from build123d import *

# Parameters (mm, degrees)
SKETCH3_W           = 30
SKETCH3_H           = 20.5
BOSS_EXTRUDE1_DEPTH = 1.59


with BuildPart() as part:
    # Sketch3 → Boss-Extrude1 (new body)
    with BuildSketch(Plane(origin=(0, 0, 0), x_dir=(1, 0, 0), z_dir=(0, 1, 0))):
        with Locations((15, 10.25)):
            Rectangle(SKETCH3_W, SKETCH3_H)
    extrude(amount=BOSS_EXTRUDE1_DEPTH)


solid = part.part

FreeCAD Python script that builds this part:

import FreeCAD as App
import Part
import Sketcher
Q = App.Units.Quantity

doc = App.newDocument("Part")
body = doc.addObject("PartDesign::Body", "Body")

# Sketch on XZ plane
sketch1 = body.newObject("Sketcher::SketchObject", "Sketch")
sketch1.AttachmentSupport = (doc.getObject("XZ_Plane"), [""])
sketch1.MapMode = "FlatFace"
sketch1.addGeometry([
    Part.LineSegment(App.Vector(0, -20.5, 0), App.Vector(0, 0, 0)),
    Part.LineSegment(App.Vector(0, 0, 0), App.Vector(30, 0, 0)),
    Part.LineSegment(App.Vector(30, 0, 0), App.Vector(30, -20.5, 0)),
    Part.LineSegment(App.Vector(30, -20.5, 0), App.Vector(0, -20.5, 0)),
], False)
sketch1.addConstraint([
    Sketcher.Constraint("Coincident", 0, 2, 1, 1),
    Sketcher.Constraint("Coincident", 1, 2, 2, 1),
    Sketcher.Constraint("Coincident", 2, 2, 3, 1),
    Sketcher.Constraint("Coincident", 3, 2, 0, 1),
    Sketcher.Constraint("Vertical", 0),
    Sketcher.Constraint("Horizontal", 1),
    Sketcher.Constraint("Vertical", 2),
    Sketcher.Constraint("Horizontal", 3),
    Sketcher.Constraint("Coincident", 0, 2, -1, 1),
    Sketcher.Constraint("DistanceX", 1, 1, 1, 2, Q("30 mm")),
    Sketcher.Constraint("DistanceY", 0, 1, 0, 2, Q("20.5 mm")),
])
pad1 = body.newObject("PartDesign::Pad", "Pad")
pad1.Profile = sketch1
pad1.Length = 1.59
pad1.Reversed = True

doc.recompute()
